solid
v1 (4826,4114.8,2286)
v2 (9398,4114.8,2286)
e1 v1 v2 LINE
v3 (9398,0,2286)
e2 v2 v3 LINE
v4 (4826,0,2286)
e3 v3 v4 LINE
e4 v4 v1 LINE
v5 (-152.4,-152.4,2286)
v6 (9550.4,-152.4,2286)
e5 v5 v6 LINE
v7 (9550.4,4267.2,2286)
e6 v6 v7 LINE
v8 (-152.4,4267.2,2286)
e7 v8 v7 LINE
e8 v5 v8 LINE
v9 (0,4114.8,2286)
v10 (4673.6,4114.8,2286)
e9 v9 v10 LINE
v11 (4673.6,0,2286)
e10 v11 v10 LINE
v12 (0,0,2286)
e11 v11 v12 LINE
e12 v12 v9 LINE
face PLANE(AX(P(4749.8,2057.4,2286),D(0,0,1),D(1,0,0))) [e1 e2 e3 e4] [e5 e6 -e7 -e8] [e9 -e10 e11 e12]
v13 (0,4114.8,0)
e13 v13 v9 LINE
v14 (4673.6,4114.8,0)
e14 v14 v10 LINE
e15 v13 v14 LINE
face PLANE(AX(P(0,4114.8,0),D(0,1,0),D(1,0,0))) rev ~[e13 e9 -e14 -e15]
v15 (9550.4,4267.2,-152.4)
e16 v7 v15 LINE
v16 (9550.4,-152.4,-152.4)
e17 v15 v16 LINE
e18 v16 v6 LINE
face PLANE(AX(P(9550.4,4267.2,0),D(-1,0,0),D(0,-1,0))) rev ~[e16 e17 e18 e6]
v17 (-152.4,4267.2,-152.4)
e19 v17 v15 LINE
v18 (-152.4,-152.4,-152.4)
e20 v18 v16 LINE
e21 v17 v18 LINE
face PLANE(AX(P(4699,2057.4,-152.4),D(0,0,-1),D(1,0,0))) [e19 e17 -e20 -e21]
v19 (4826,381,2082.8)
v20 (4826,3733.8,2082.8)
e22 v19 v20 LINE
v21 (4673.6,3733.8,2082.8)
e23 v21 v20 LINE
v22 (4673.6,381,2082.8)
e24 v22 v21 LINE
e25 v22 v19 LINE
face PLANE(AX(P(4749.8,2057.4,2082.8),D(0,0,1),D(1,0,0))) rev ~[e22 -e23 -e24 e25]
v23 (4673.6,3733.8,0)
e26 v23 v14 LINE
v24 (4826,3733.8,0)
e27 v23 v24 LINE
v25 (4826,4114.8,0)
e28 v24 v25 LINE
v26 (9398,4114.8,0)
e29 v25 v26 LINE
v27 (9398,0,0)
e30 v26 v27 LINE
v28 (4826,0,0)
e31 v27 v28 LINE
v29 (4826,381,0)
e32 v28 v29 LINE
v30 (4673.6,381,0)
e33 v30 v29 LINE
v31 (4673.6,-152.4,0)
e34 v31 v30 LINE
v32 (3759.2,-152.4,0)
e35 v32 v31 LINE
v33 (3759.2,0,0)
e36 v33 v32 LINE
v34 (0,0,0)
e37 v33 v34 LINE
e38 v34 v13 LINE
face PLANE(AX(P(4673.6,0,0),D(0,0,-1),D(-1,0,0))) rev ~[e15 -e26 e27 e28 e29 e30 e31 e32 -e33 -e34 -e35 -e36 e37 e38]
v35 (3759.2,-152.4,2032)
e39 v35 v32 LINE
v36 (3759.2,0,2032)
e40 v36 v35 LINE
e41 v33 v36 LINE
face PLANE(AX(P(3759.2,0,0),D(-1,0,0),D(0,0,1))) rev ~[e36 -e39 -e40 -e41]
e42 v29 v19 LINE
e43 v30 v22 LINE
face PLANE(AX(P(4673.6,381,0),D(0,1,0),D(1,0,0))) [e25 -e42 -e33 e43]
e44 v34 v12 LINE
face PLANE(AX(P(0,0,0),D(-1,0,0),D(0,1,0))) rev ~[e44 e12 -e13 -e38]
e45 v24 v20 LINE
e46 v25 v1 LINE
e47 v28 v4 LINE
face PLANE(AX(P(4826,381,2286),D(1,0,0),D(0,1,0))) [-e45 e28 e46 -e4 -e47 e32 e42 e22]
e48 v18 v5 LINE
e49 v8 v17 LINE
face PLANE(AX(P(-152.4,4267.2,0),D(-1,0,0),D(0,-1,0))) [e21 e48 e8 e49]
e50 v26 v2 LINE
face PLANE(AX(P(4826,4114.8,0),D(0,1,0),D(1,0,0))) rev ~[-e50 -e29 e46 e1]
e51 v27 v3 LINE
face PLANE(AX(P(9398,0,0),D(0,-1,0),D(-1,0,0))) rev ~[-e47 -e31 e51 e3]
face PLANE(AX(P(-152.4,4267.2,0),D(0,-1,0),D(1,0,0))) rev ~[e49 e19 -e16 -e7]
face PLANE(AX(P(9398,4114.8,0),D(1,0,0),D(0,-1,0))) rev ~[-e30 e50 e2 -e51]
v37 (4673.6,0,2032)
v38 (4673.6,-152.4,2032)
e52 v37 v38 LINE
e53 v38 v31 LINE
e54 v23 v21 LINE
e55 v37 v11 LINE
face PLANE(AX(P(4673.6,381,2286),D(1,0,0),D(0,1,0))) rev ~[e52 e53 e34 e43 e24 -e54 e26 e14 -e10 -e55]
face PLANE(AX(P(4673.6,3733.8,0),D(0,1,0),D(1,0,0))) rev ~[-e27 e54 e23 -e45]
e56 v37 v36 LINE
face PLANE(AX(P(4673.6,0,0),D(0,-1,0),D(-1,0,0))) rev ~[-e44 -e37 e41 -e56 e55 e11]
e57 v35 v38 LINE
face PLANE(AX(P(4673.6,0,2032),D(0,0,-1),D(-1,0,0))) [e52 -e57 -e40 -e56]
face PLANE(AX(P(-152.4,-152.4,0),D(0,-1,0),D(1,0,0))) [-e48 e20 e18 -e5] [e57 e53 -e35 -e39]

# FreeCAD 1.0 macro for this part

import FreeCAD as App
import Part
import Sketcher
from FreeCAD import Vector
Q = App.Units.Quantity

doc = App.newDocument("Part")
body = doc.addObject("PartDesign::Body", "Body")

sketch1 = body.newObject("Sketcher::SketchObject", "Sketch")
sketch1.AttachmentSupport = (doc.getObject("XY_Plane"), [""])
sketch1.MapMode = "FlatFace"
sketch1.addGeometry(Part.LineSegment(Vector(-152, 4267, 0), Vector(-152, -152, 0)), False)
sketch1.addGeometry(Part.LineSegment(Vector(-152, -152, 0), Vector(9550, -152, 0)), False)
sketch1.addGeometry(Part.LineSegment(Vector(9550, -152, 0), Vector(9550, 4267, 0)), False)
sketch1.addGeometry(Part.LineSegment(Vector(9550, 4267, 0), Vector(-152, 4267, 0)), False)
sketch1.addGeometry(Part.LineSegment(Vector(9398, 0, 0), Vector(4826, 0, 0)), False)
sketch1.addGeometry(Part.LineSegment(Vector(4826, 0, 0), Vector(4826, 381, 0)), False)
sketch1.addGeometry(Part.LineSegment(Vector(4826, 381, 0), Vector(4674, 381, 0)), False)
sketch1.addGeometry(Part.LineSegment(Vector(4674, 381, 0), Vector(4674, 0, 0)), False)
sketch1.addGeometry(Part.LineSegment(Vector(4674, 0, 0), Vector(0, 0, 0)), False)
sketch1.addGeometry(Part.LineSegment(Vector(0, 0, 0), Vector(0, 4115, 0)), False)
sketch1.addGeometry(Part.LineSegment(Vector(0, 4115, 0), Vector(4674, 4115, 0)), False)
sketch1.addGeometry(Part.LineSegment(Vector(4674, 4115, 0), Vector(4674, 3734, 0)), False)
sketch1.addGeometry(Part.LineSegment(Vector(4674, 3734, 0), Vector(4826, 3734, 0)), False)
sketch1.addGeometry(Part.LineSegment(Vector(4826, 3734, 0), Vector(4826, 4115, 0)), False)
sketch1.addGeometry(Part.LineSegment(Vector(4826, 4115, 0), Vector(9398, 4115, 0)), False)
sketch1.addGeometry(Part.LineSegment(Vector(9398, 4115, 0), Vector(9398, 0, 0)), False)
sketch1.addConstraint(Sketcher.Constraint("Coincident", 0, 2, 1, 1))
sketch1.addConstraint(Sketcher.Constraint("Coincident", 1, 2, 2, 1))
sketch1.addConstraint(Sketcher.Constraint("Coincident", 2, 2, 3, 1))
sketch1.addConstraint(Sketcher.Constraint("Coincident", 3, 2, 0, 1))
sketch1.addConstraint(Sketcher.Constraint("Coincident", 4, 2, 5, 1))
sketch1.addConstraint(Sketcher.Constraint("Coincident", 5, 2, 6, 1))
sketch1.addConstraint(Sketcher.Constraint("Coincident", 6, 2, 7, 1))
sketch1.addConstraint(Sketcher.Constraint("Coincident", 7, 2, 8, 1))
sketch1.addConstraint(Sketcher.Constraint("Coincident", 8, 2, 9, 1))
sketch1.addConstraint(Sketcher.Constraint("Coincident", 9, 2, 10, 1))
sketch1.addConstraint(Sketcher.Constraint("Coincident", 10, 2, 11, 1))
sketch1.addConstraint(Sketcher.Constraint("Coincident", 11, 2, 12, 1))
sketch1.addConstraint(Sketcher.Constraint("Coincident", 12, 2, 13, 1))
sketch1.addConstraint(Sketcher.Constraint("Coincident", 13, 2, 14, 1))
sketch1.addConstraint(Sketcher.Constraint("Coincident", 14, 2, 15, 1))
sketch1.addConstraint(Sketcher.Constraint("Coincident", 15, 2, 4, 1))
sketch1.addConstraint(Sketcher.Constraint("Vertical", 0))
sketch1.addConstraint(Sketcher.Constraint("Horizontal", 1))
sketch1.addConstraint(Sketcher.Constraint("Vertical", 2))
sketch1.addConstraint(Sketcher.Constraint("Horizontal", 3))
sketch1.addConstraint(Sketcher.Constraint("Horizontal", 4))
sketch1.addConstraint(Sketcher.Constraint("Vertical", 5))
sketch1.addConstraint(Sketcher.Constraint("Horizontal", 6))
sketch1.addConstraint(Sketcher.Constraint("Vertical", 7))
sketch1.addConstraint(Sketcher.Constraint("Horizontal", 8))
sketch1.addConstraint(Sketcher.Constraint("Vertical", 9))
sketch1.addConstraint(Sketcher.Constraint("Horizontal", 10))
sketch1.addConstraint(Sketcher.Constraint("Vertical", 11))
sketch1.addConstraint(Sketcher.Constraint("Horizontal", 12))
sketch1.addConstraint(Sketcher.Constraint("Vertical", 13))
sketch1.addConstraint(Sketcher.Constraint("Horizontal", 14))
sketch1.addConstraint(Sketcher.Constraint("Vertical", 15))
sketch1.addConstraint(Sketcher.Constraint("Coincident", 8, 2, -1, 1))
sketch1.addConstraint(Sketcher.Constraint("PointOnObject", 4, 2, -1))
sketch1.addConstraint(Sketcher.Constraint("Horizontal", 10, 2, 13, 2))
sketch1.addConstraint(Sketcher.Constraint("Vertical", 7, 2, 10, 2))
sketch1.addConstraint(Sketcher.Constraint("Vertical", 5, 2, 12, 2))
sketch1.addConstraint(Sketcher.Constraint("Equal", 7, 11))
sketch1.addConstraint(Sketcher.Constraint("DistanceX", 1, 1, 1, 2, Q("382 in")))
sketch1.addConstraint(Sketcher.Constraint("DistanceX", 4, 2, 4, 1, Q("180 in")))
sketch1.addConstraint(Sketcher.Constraint("DistanceX", 6, 2, 6, 1, Q("6 in")))
sketch1.addConstraint(Sketcher.Constraint("DistanceX", 8, 2, 8, 1, Q("184 in")))
sketch1.addConstraint(Sketcher.Constraint("DistanceY", 0, 2, 0, 1, Q("174 in")))
sketch1.addConstraint(Sketcher.Constraint("DistanceY", 5, 1, 5, 2, Q("15 in")))
sketch1.addConstraint(Sketcher.Constraint("DistanceY", 9, 1, 9, 2, Q("162 in")))
sketch1.addConstraint(Sketcher.Constraint("DistanceX", 0, 2, -1, 1, Q("6 in")))
sketch1.addConstraint(Sketcher.Constraint("DistanceY", 0, 2, -1, 1, Q("6 in")))
pad1 = body.newObject("PartDesign::Pad", "Pad")
pad1.Profile = sketch1
pad1.Length = Q("90 in")

sketch2 = body.newObject("Sketcher::SketchObject", "Sketch001")
sketch2.AttachmentSupport = (doc.getObject("XY_Plane"), [""])
sketch2.MapMode = "FlatFace"
sketch2.addGeometry(Part.LineSegment(Vector(-152, -152, 0), Vector(-152, 4267, 0)), False)
sketch2.addGeometry(Part.LineSegment(Vector(-152, 4267, 0), Vector(9550, 4267, 0)), False)
sketch2.addGeometry(Part.LineSegment(Vector(9550, 4267, 0), Vector(9550, -152, 0)), False)
sketch2.addGeometry(Part.LineSegment(Vector(9550, -152, 0), Vector(-152, -152, 0)), False)
sketch2.addConstraint(Sketcher.Constraint("Coincident", 0, 2, 1, 1))
sketch2.addConstraint(Sketcher.Constraint("Coincident", 1, 2, 2, 1))
sketch2.addConstraint(Sketcher.Constraint("Coincident", 2, 2, 3, 1))
sketch2.addConstraint(Sketcher.Constraint("Coincident", 3, 2, 0, 1))
sketch2.addConstraint(Sketcher.Constraint("Vertical", 0))
sketch2.addConstraint(Sketcher.Constraint("Horizontal", 1))
sketch2.addConstraint(Sketcher.Constraint("Vertical", 2))
sketch2.addConstraint(Sketcher.Constraint("Horizontal", 3))
sketch2.addConstraint(Sketcher.Constraint("DistanceX", 1, 1, 1, 2, Q("382 in")))
sketch2.addConstraint(Sketcher.Constraint("DistanceY", 0, 1, 0, 2, Q("174 in")))
sketch2.addConstraint(Sketcher.Constraint("DistanceX", 0, 2, -1, 1, Q("6 in")))
sketch2.addConstraint(Sketcher.Constraint("DistanceY", -1, 1, 0, 2, Q("168 in")))
pad2 = body.newObject("PartDesign::Pad", "Pad001")
pad2.Profile = sketch2
pad2.Length = Q("6 in")
pad2.Reversed = True

sketch3 = body.newObject("Sketcher::SketchObject", "Sketch002")
sketch3.AttachmentSupport = (doc.getObject("XZ_Plane"), [""])
sketch3.MapMode = "FlatFace"
sketch3.addGeometry(Part.LineSegment(Vector(4674, 2032, 0), Vector(4674, 0, 0)), False)
sketch3.addGeometry(Part.LineSegment(Vector(4674, 0, 0), Vector(3759, 0, 0)), False)
sketch3.addGeometry(Part.LineSegment(Vector(3759, 0, 0), Vector(3759, 2032, 0)), False)
sketch3.addGeometry(Part.LineSegment(Vector(3759, 2032, 0), Vector(4674, 2032, 0)), False)
sketch3.addConstraint(Sketcher.Constraint("Coincident", 0, 2, 1, 1))
sketch3.addConstraint(Sketcher.Constraint("Coincident", 1, 2, 2, 1))
sketch3.addConstraint(Sketcher.Constraint("Coincident", 2, 2, 3, 1))
sketch3.addConstraint(Sketcher.Constraint("Coincident", 3, 2, 0, 1))
sketch3.addConstraint(Sketcher.Constraint("Vertical", 0))
sketch3.addConstraint(Sketcher.Constraint("Horizontal", 1))
sketch3.addConstraint(Sketcher.Constraint("Vertical", 2))
sketch3.addConstraint(Sketcher.Constraint("Horizontal", 3))
sketch3.addConstraint(Sketcher.Constraint("PointOnObject", 0, 2, -1))
sketch3.addConstraint(Sketcher.Constraint("DistanceX", 1, 2, 1, 1, Q("36 in")))
sketch3.addConstraint(Sketcher.Constraint("DistanceY", 0, 2, 0, 1, Q("80 in")))
sketch3.addConstraint(Sketcher.Constraint("DistanceX", -1, 1, 0, 2, Q("184 in")))
pocket1 = body.newObject("PartDesign::Pocket", "Pocket")
pocket1.Profile = sketch3
pocket1.Type = "ThroughAll"
pocket1.Reversed = True

sketch4 = body.newObject("Sketcher::SketchObject", "Sketch003")
sketch4.AttachmentSupport = (doc.getObject("XY_Plane"), [""])
sketch4.MapMode = "FlatFace"
sketch4.AttachmentOffset = App.Placement(Vector(0, 0, 90 * 25.4), App.Rotation())
sketch4.addGeometry(Part.LineSegment(Vector(4674, 3734, 0), Vector(4674, 381, 0)), False)
sketch4.addGeometry(Part.LineSegment(Vector(4674, 381, 0), Vector(4826, 381, 0)), False)
sketch4.addGeometry(Part.LineSegment(Vector(4826, 381, 0), Vector(4826, 3734, 0)), False)
sketch4.addGeometry(Part.LineSegment(Vector(4826, 3734, 0), Vector(4674, 3734, 0)), False)
sketch4.addConstraint(Sketcher.Constraint("Coincident", 0, 2, 1, 1))
sketch4.addConstraint(Sketcher.Constraint("Coincident", 1, 2, 2, 1))
sketch4.addConstraint(Sketcher.Constraint("Coincident", 2, 2, 3, 1))
sketch4.addConstraint(Sketcher.Constraint("Coincident", 3, 2, 0, 1))
sketch4.addConstraint(Sketcher.Constraint("Vertical", 0))
sketch4.addConstraint(Sketcher.Constraint("Horizontal", 1))
sketch4.addConstraint(Sketcher.Constraint("Vertical", 2))
sketch4.addConstraint(Sketcher.Constraint("Horizontal", 3))
sketch4.addConstraint(Sketcher.Constraint("DistanceX", 1, 1, 1, 2, Q("6 in")))
sketch4.addConstraint(Sketcher.Constraint("DistanceY", 0, 2, 0, 1, Q("132 in")))
sketch4.addConstraint(Sketcher.Constraint("DistanceX", -1, 1, 0, 2, Q("184 in")))
sketch4.addConstraint(Sketcher.Constraint("DistanceY", -1, 1, 0, 2, Q("15 in")))
pad3 = body.newObject("PartDesign::Pad", "Pad002")
pad3.Profile = sketch4
pad3.Length = Q("8 in")
pad3.Reversed = True

doc.recompute()
